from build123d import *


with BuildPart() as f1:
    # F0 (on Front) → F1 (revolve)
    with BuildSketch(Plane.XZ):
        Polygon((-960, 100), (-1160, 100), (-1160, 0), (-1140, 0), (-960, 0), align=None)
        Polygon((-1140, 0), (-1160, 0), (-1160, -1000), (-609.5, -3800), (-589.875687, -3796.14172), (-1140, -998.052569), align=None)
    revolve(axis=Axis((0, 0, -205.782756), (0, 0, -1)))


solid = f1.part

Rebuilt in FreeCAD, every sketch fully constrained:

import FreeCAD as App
import Part
import Sketcher

V = App.Vector
Q = App.Units.Quantity


def add_polygon(sketch, points):
    """Adds a closed chain of lines whose ends are joined by coincident constraints."""
    first, n = sketch.GeometryCount, len(points)
    for a, b in zip(points, points[1:] + points[:1]):
        sketch.addGeometry(Part.LineSegment(App.Vector(*a, 0), App.Vector(*b, 0)), False)
    for i in range(n):
        sketch.addConstraint(Sketcher.Constraint("Coincident", first + i, 2, first + (i + 1) % n, 1))

doc = App.newDocument("Part")
body = doc.addObject("PartDesign::Body", "Body")

# Sketch on XZ plane
sketch1 = doc.addObject("Sketcher::SketchObject", "Sketch")
body.addObject(sketch1)
sketch1.AttachmentSupport = (doc.XZ_Plane, [""])
sketch1.MapMode = "FlatFace"
add_polygon(sketch1, [(-960, 100), (-1160, 100), (-1160, -1000), (-610, -3800), (-590, -3796), (-1140, -998), (-1140, 0), (-960, 0)])  # lines 0-7
sketch1.addConstraint(Sketcher.Constraint("Horizontal", 0))
sketch1.addConstraint(Sketcher.Constraint("Vertical", 1))
sketch1.addConstraint(Sketcher.Constraint("Vertical", 5))
sketch1.addConstraint(Sketcher.Constraint("Horizontal", 6))
sketch1.addConstraint(Sketcher.Constraint("Vertical", 7))
sketch1.addConstraint(Sketcher.Constraint("PointOnObject", 5, 2, -1))
sketch1.addConstraint(Sketcher.Constraint("Perpendicular", 2, 3))
sketch1.addConstraint(Sketcher.Constraint("Perpendicular", 3, 4))
sketch1.addConstraint(Sketcher.Constraint("DistanceX", 0, 2, 0, 1, Q("200 mm")))
sketch1.addConstraint(Sketcher.Constraint("DistanceX", 6, 1, 6, 2, Q("180 mm")))
sketch1.addConstraint(Sketcher.Constraint("DistanceY", 1, 2, 1, 1, Q("1100 mm")))
sketch1.addConstraint(Sketcher.Constraint("DistanceY", 7, 1, 7, 2, Q("100 mm")))
sketch1.addConstraint(Sketcher.Constraint("Distance", 3, Q("20 mm")))
sketch1.addConstraint(Sketcher.Constraint("DistanceX", 0, 2, -1, 1, Q("1160 mm")))
sketch1.addConstraint(Sketcher.Constraint("DistanceY", 2, 2, -1, 1, Q("3800 mm")))
sketch1.addConstraint(Sketcher.Constraint("DistanceX", 2, 2, -1, 1, Q("609.5 mm")))
revolution = doc.addObject("PartDesign::Revolution", "Revolution")
body.addObject(revolution)
revolution.Profile = sketch1
revolution.ReferenceAxis = (sketch1, ["V_Axis"])
revolution.Angle = 360

doc.recompute()
